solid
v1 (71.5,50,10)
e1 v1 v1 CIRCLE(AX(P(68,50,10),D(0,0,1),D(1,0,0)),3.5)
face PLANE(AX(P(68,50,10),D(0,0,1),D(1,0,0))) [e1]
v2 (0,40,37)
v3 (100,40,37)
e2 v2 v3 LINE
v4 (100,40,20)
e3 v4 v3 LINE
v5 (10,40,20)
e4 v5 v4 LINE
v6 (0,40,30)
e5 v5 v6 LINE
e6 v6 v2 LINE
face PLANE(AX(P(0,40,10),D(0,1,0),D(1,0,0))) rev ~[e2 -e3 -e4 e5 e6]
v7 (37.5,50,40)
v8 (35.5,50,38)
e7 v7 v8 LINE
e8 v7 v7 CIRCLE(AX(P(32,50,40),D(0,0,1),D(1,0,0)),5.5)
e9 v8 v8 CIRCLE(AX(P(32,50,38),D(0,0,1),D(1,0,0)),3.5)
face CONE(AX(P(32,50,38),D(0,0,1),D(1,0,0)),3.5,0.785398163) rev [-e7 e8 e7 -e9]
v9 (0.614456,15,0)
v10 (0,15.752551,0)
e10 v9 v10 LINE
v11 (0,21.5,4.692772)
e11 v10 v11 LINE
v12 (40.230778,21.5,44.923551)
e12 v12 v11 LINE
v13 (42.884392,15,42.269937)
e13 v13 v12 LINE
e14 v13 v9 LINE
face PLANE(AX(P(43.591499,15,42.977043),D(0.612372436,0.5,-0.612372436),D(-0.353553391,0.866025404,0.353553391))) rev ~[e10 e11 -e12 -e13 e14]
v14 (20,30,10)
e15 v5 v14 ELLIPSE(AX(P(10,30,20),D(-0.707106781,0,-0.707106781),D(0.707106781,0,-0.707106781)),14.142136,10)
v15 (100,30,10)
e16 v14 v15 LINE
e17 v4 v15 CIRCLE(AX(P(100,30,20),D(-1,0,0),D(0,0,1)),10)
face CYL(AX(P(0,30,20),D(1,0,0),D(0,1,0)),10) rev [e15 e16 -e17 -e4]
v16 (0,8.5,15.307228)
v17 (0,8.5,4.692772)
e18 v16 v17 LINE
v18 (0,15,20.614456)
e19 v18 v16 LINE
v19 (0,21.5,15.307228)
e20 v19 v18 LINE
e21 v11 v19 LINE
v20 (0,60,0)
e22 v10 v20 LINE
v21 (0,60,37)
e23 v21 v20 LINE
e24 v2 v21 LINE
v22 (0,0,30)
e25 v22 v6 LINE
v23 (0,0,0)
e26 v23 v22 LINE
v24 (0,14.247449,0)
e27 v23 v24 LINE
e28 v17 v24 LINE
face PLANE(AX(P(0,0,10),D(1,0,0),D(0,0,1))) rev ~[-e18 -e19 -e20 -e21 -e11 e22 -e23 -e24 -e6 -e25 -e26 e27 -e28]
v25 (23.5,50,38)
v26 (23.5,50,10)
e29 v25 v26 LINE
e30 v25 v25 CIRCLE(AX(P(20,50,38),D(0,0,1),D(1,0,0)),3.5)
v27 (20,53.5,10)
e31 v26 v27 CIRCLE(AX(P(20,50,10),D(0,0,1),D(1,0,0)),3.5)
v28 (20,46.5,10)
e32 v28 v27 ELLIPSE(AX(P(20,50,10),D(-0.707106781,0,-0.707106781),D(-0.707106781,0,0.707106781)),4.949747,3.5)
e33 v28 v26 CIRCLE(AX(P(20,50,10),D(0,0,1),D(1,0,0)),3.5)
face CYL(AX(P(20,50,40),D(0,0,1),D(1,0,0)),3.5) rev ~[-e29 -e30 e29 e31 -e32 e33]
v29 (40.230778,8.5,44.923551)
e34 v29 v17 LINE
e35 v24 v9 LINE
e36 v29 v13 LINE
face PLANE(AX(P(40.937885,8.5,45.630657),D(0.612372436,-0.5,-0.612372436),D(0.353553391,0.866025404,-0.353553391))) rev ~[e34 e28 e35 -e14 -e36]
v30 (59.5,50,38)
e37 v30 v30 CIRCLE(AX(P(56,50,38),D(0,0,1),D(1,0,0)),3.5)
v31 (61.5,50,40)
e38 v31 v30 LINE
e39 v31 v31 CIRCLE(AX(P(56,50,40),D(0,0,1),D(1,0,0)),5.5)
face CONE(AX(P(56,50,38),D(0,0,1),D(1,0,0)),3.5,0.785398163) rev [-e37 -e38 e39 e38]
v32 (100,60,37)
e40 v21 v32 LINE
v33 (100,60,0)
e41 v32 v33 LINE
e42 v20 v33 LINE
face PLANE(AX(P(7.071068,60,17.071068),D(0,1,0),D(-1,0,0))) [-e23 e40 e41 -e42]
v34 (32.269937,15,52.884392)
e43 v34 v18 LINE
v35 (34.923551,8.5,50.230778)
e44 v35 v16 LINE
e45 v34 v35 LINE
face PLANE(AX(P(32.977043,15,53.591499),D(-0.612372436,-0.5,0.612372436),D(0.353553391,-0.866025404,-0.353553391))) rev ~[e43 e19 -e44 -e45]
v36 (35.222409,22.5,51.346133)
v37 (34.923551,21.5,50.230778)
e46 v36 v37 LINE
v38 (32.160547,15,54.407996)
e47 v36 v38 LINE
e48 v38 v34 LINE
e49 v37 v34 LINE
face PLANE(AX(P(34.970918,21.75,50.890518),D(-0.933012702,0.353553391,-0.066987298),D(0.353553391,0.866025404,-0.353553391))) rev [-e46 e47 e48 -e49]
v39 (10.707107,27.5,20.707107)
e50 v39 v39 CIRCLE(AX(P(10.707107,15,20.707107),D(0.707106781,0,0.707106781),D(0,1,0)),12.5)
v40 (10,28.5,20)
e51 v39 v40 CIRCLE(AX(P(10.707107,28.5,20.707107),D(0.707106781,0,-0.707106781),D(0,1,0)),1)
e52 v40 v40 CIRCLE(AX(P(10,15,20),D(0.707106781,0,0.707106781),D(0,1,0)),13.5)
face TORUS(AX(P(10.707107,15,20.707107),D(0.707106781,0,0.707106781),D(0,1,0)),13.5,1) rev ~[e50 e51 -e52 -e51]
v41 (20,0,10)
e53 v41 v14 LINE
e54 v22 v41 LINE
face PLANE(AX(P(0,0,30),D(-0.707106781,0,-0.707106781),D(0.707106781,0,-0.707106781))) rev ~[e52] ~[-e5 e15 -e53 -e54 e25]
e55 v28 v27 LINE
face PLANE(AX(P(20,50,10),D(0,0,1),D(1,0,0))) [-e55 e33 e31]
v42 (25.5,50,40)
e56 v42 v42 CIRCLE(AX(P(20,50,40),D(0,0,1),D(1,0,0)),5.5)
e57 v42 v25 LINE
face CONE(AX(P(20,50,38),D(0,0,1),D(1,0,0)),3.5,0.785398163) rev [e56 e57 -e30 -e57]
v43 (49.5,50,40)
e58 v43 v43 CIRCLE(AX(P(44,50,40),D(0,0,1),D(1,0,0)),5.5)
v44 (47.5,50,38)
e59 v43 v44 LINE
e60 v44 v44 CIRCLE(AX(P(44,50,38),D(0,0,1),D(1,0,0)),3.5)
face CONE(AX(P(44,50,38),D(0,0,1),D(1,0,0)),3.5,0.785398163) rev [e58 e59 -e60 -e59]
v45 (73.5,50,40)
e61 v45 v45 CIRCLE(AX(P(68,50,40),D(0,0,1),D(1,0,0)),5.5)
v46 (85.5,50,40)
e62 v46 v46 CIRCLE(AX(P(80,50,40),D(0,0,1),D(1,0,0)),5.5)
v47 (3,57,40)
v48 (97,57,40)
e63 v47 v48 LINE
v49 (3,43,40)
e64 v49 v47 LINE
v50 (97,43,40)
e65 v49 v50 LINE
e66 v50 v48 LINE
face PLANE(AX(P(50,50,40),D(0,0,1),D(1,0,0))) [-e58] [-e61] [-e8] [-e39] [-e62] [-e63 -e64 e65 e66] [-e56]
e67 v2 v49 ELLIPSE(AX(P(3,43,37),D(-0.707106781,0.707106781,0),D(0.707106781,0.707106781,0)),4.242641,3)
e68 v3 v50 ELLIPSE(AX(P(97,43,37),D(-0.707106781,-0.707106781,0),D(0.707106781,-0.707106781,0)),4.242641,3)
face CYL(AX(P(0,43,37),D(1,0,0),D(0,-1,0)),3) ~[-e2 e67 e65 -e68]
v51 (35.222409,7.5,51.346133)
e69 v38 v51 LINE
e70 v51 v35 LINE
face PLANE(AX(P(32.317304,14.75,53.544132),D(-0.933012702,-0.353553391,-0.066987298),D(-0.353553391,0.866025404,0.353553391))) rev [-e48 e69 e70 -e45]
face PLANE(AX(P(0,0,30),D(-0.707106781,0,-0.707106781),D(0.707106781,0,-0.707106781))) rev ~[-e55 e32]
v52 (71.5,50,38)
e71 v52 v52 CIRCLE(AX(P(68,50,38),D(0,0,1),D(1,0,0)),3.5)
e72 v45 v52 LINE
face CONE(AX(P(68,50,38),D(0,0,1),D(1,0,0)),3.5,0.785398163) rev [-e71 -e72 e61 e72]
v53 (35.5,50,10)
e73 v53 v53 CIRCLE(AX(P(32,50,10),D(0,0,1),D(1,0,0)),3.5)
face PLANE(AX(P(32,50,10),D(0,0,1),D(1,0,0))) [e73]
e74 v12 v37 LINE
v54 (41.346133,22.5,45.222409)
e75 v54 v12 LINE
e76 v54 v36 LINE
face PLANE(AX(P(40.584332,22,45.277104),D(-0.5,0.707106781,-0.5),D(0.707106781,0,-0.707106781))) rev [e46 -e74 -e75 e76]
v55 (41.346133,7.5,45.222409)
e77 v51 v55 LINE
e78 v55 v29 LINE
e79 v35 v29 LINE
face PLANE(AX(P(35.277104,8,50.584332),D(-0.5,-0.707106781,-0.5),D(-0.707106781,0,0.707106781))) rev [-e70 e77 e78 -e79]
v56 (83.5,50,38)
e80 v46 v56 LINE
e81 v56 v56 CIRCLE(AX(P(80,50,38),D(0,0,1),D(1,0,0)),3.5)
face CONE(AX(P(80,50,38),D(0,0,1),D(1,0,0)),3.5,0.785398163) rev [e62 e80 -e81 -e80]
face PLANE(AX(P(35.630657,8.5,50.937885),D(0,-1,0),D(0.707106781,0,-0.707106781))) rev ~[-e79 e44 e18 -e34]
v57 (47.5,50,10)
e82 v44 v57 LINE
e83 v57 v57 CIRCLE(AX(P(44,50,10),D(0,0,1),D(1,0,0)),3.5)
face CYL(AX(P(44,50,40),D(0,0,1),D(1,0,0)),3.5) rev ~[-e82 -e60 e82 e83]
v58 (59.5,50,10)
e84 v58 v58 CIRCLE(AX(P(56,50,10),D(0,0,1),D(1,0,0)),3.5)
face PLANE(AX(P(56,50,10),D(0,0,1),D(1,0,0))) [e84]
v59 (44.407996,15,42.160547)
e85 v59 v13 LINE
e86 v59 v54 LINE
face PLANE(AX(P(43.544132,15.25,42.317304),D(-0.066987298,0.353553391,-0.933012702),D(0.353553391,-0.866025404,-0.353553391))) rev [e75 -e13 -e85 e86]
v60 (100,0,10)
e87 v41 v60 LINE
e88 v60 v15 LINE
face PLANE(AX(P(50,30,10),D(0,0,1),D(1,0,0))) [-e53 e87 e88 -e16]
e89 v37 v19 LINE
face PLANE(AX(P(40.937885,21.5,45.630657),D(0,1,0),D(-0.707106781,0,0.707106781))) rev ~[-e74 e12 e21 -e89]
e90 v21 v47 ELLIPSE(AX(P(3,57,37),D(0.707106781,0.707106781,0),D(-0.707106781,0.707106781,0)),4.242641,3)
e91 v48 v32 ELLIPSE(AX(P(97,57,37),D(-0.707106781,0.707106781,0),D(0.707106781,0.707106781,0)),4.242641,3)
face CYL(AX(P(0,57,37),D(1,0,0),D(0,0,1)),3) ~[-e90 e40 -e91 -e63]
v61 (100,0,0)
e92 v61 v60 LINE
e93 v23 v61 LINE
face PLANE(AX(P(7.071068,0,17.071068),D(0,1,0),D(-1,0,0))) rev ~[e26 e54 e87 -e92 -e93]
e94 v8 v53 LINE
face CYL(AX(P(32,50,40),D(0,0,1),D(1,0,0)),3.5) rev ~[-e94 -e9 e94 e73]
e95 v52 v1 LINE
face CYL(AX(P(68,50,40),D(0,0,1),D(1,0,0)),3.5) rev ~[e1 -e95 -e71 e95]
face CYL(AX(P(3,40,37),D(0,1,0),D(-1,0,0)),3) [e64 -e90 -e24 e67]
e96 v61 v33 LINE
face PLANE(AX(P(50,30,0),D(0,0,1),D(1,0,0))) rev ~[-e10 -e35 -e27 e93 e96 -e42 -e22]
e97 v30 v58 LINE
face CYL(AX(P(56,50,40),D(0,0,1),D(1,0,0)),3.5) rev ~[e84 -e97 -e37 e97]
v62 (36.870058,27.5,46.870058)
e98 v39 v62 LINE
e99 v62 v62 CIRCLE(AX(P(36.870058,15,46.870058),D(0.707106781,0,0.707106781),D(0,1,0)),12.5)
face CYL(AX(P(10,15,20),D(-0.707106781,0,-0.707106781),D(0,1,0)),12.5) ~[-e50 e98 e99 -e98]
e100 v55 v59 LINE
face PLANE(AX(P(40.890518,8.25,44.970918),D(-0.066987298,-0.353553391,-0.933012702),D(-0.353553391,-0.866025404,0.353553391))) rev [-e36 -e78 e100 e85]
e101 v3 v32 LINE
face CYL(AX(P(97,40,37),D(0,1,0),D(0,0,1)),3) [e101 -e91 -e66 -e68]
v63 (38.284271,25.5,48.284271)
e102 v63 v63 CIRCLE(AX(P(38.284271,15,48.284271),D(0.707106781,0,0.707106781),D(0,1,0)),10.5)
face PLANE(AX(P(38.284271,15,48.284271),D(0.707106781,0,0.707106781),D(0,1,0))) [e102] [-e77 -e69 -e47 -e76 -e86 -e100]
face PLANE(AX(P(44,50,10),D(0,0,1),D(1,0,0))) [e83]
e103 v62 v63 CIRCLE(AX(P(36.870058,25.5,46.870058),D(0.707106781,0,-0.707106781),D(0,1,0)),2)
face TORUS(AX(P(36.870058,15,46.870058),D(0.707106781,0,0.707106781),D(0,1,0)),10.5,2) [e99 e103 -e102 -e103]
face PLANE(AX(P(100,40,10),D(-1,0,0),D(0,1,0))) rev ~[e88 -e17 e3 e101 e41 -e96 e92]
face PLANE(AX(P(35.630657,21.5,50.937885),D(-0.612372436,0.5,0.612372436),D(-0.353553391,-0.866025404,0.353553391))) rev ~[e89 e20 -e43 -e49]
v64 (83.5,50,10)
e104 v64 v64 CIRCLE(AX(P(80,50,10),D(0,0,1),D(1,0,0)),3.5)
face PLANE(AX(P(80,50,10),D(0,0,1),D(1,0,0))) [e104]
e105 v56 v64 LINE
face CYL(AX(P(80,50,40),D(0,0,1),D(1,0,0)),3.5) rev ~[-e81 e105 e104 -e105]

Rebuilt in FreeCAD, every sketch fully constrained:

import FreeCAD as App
import Part
import Sketcher
Q = App.Units.Quantity


def edges_at(feature, points):
    """Names of the edges that pass closest to the given points."""
    edges = feature.Shape.Edges
    near = lambda p: min(range(len(edges)), key=lambda i: edges[i].distToShape(Part.Vertex(*p))[0])
    return sorted({f"Edge{near(p) + 1}" for p in points})


def add_polygon(sketch, points):
    """Adds a closed chain of lines whose ends are joined by coincident constraints."""
    first, n = sketch.GeometryCount, len(points)
    for a, b in zip(points, points[1:] + points[:1]):
        sketch.addGeometry(Part.LineSegment(App.Vector(*a, 0), App.Vector(*b, 0)), False)
    for i in range(n):
        sketch.addConstraint(Sketcher.Constraint("Coincident", first + i, 2, first + (i + 1) % n, 1))

doc = App.newDocument("Part")
params = doc.addObject("Spreadsheet::Sheet", "Params")
for row, (alias, value) in enumerate([
    ("sketch1_width", "100 mm"),
    ("sketch1_height", "60 mm"),
    ("pad1_length", "10 mm"),
    ("sketch2_width", "100 mm"),
    ("sketch2_height", "20 mm"),
    ("pad2_length", "30 mm"),
    ("sketch3_diameter", "7 mm"),
    ("pocket1_length", "30 mm"),
    ("linearpattern_pitch", "12 mm"),
    ("chamfer_size", "2 mm"),
    ("fillet_radius", "10 mm"),
    ("fillet2_radius", "3 mm"),
    ("sketch4_width", "20 mm"),
    ("pad3_length", "60 mm"),
    ("sketch5_diameter", "25 mm"),
    ("pad4_length", "40 mm"),
    ("fillet3_radius", "2 mm"),
    ("chamfer2_size", "1 mm"),
    ("fillet4_radius", "1 mm"),
], start=1):
    params.set(f"A{row}", alias)
    params.set(f"B{row}", "=" + value)
    params.setAlias(f"B{row}", alias)

body = doc.addObject("PartDesign::Body", "Body")

# Sketch on XY plane
sketch1 = doc.addObject("Sketcher::SketchObject", "Sketch")
body.addObject(sketch1)
sketch1.AttachmentSupport = (doc.XY_Plane, [""])
sketch1.MapMode = "FlatFace"
add_polygon(sketch1, [(0, 60), (0, 0), (100, 0), (100, 60)])  # lines 0-3
sketch1.addConstraint([
    Sketcher.Constraint("Vertical", 0),
    Sketcher.Constraint("Horizontal", 1),
    Sketcher.Constraint("Vertical", 2),
    Sketcher.Constraint("Horizontal", 3),
    Sketcher.Constraint("Coincident", 0, 2, -1, 1),
    Sketcher.Constraint("DistanceX", 1, 1, 1, 2, 100.0),
    Sketcher.Constraint("DistanceY", 0, 2, 0, 1, 60.0),
])
sketch1.setExpression("Constraints[9]", "Params.sketch1_width")
sketch1.setExpression("Constraints[10]", "Params.sketch1_height")
pad1 = doc.addObject("PartDesign::Pad", "Pad")
body.addObject(pad1)
pad1.Profile = sketch1
pad1.setExpression("Length", "Params.pad1_length")

# Sketch on XY plane
sketch2 = doc.addObject("Sketcher::SketchObject", "Sketch001")
body.addObject(sketch2)
sketch2.AttachmentSupport = (doc.XY_Plane, [""])
sketch2.MapMode = "FlatFace"
sketch2.AttachmentOffset = App.Placement(App.Vector(0, 0, 10), App.Rotation())
add_polygon(sketch2, [(0, 60), (0, 40), (100, 40), (100, 60)])  # lines 0-3
sketch2.addConstraint([
    Sketcher.Constraint("Vertical", 0),
    Sketcher.Constraint("Horizontal", 1),
    Sketcher.Constraint("Vertical", 2),
    Sketcher.Constraint("Horizontal", 3),
    Sketcher.Constraint("PointOnObject", 0, 2, -2),
    Sketcher.Constraint("DistanceX", 1, 1, 1, 2, 100.0),
    Sketcher.Constraint("DistanceY", 0, 2, 0, 1, 20.0),
    Sketcher.Constraint("DistanceY", -1, 1, 0, 2, 40.0),
])
sketch2.setExpression("Constraints[9]", "Params.sketch2_width")
sketch2.setExpression("Constraints[10]", "Params.sketch2_height")
pad2 = doc.addObject("PartDesign::Pad", "Pad001")
body.addObject(pad2)
pad2.Profile = sketch2
pad2.setExpression("Length", "Params.pad2_length")

# Sketch on XY plane
sketch3 = doc.addObject("Sketcher::SketchObject", "Sketch002")
body.addObject(sketch3)
sketch3.AttachmentSupport = (doc.XY_Plane, [""])
sketch3.MapMode = "FlatFace"
sketch3.AttachmentOffset = App.Placement(App.Vector(0, 0, 40), App.Rotation())
sketch3.addGeometry(Part.Circle(App.Vector(80, 50, 0), App.Vector(0, 0, 1), 3.5), False)
sketch3.addConstraint([
    Sketcher.Constraint("Diameter", 0, 7.0),
    Sketcher.Constraint("DistanceX", -1, 1, 0, 3, 80.0),
    Sketcher.Constraint("DistanceY", -1, 1, 0, 3, 50.0),
])
sketch3.setExpression("Constraints[0]", "Params.sketch3_diameter")
pocket1 = doc.addObject("PartDesign::Pocket", "Pocket")
body.addObject(pocket1)
pocket1.Profile = sketch3
pocket1.setExpression("Length", "Params.pocket1_length")
doc.recompute()

linearpattern = doc.addObject("PartDesign::LinearPattern", "LinearPattern")
body.addObject(linearpattern)
linearpattern.Originals = [pocket1]
linearpattern.Direction = (doc.X_Axis, [""])
linearpattern.Mode = "offset"
linearpattern.setExpression("Offset", "Params.linearpattern_pitch")
linearpattern.Occurrences = 6
linearpattern.Reversed = True
body.Tip = linearpattern
doc.recompute()

chamfer = doc.addObject("PartDesign::Chamfer", "Chamfer")
body.addObject(chamfer)
chamfer.Base = (linearpattern, edges_at(linearpattern, [
    (28.5, 50, 40),
    (16.5, 50, 40),
    (40.5, 50, 40),
    (52.5, 50, 40),
    (64.5, 50, 40),
    (76.5, 50, 40),
]))
chamfer.setExpression("Size", "Params.chamfer_size")
doc.recompute()

fillet = doc.addObject("PartDesign::Fillet", "Fillet")
body.addObject(fillet)
fillet.Base = (chamfer, edges_at(chamfer, [(50, 40, 10)]))
fillet.setExpression("Radius", "Params.fillet_radius")
doc.recompute()

fillet2 = doc.addObject("PartDesign::Fillet", "Fillet001")
body.addObject(fillet2)
fillet2.Base = (fillet, edges_at(fillet, [
    (0, 50, 40),
    (50, 60, 40),
    (50, 40, 40),
    (100, 50, 40),
]))
fillet2.setExpression("Radius", "Params.fillet2_radius")

# Sketch on XZ plane
sketch4 = doc.addObject("Sketcher::SketchObject", "Sketch003")
body.addObject(sketch4)
sketch4.AttachmentSupport = (doc.XZ_Plane, [""])
sketch4.MapMode = "FlatFace"
add_polygon(sketch4, [(0, 30), (0, 10), (20, 10)])  # lines 0-2
sketch4.addConstraint([
    Sketcher.Constraint("Vertical", 0),
    Sketcher.Constraint("Horizontal", 1),
    Sketcher.Constraint("PointOnObject", 0, 2, -2),
    Sketcher.Constraint("Equal", 1, 0),
    Sketcher.Constraint("DistanceX", 1, 1, 1, 2, 20.0),
    Sketcher.Constraint("DistanceY", -1, 1, 0, 2, 10.0),
])
sketch4.setExpression("Constraints[7]", "Params.sketch4_width")
pad3 = doc.addObject("PartDesign::Pad", "Pad002")
body.addObject(pad3)
pad3.Profile = sketch4
pad3.setExpression("Length", "Params.pad3_length")
pad3.Reversed = True

# Sketch on an angled plane
sketch5 = doc.addObject("Sketcher::SketchObject", "Sketch004")
body.addObject(sketch5)
sketch5.Placement = App.Placement(App.Vector(15, 0, 15), App.Rotation(App.Vector(0, 1, 0), App.Vector(-0.707106781, 0, 0.707106781), App.Vector(0.707106781, 0, 0.707106781), "ZXY"))
sketch5.addGeometry(Part.Circle(App.Vector(15, 7, 0), App.Vector(0, 0, 1), 12), False)
sketch5.addConstraint([
    Sketcher.Constraint("Diameter", 0, 25.0),
    Sketcher.Constraint("DistanceX", -1, 1, 0, 3, 15.0),
    Sketcher.Constraint("DistanceY", -1, 1, 0, 3, 7.071068),
])
sketch5.setExpression("Constraints[0]", "Params.sketch5_diameter")
pad4 = doc.addObject("PartDesign::Pad", "Pad003")
body.addObject(pad4)
pad4.Profile = sketch5
pad4.setExpression("Length", "Params.pad4_length")

# Sketch on an angled plane
sketch6 = doc.addObject("Sketcher::SketchObject", "Sketch005")
body.addObject(sketch6)
sketch6.Placement = App.Placement(App.Vector(43.284271, 0, 43.284271), App.Rotation(App.Vector(0.707106781, 0, -0.707106781), App.Vector(0, 0.999999999, 0), App.Vector(0.707106781, 0, 0.707106781), "ZXY"))
add_polygon(sketch6, [(-3, 21), (-11, 21), (-15, 15), (-11, 8), (-3, 8), (0, 15)])  # lines 0-5
sketch6.addConstraint([
    Sketcher.Constraint("Horizontal", 0),
    Sketcher.Constraint("Horizontal", 3),
    Sketcher.Constraint("Parallel", 1, 4),
    Sketcher.Constraint("Parallel", 2, 5),
    Sketcher.Constraint("Horizontal", 1, 2, 4, 2),
    Sketcher.Constraint("Vertical", 0, 2, 2, 2),
    Sketcher.Constraint("Vertical", 3, 2, 5, 2),
    Sketcher.Constraint("Angle", 1, Q("-120 deg")),
    Sketcher.Constraint("DistanceY", -1, 1, 1, 2, 15.0),
    Sketcher.Constraint("DistanceY", 2, 2, 0, 2, 13.0),
    Sketcher.Constraint("DistanceX", 0, 2, 0, 1, 7.505553),
    Sketcher.Constraint("DistanceX", 1, 2, -1, 1, 14.576621),
])
pocket2 = doc.addObject("PartDesign::Pocket", "Pocket001")
body.addObject(pocket2)
pocket2.Profile = sketch6
pocket2.Type = "ThroughAll"
doc.recompute()

fillet3 = doc.addObject("PartDesign::Fillet", "Fillet002")
body.addObject(fillet3)
fillet3.Base = (pocket2, edges_at(pocket2, [(38.284, 2.5, 48.284)]))
fillet3.setExpression("Radius", "Params.fillet3_radius")
doc.recompute()

chamfer2 = doc.addObject("PartDesign::Chamfer", "Chamfer001")
body.addObject(chamfer2)
chamfer2.Base = (fillet3, edges_at(fillet3, [
    (38.284, 21.5, 48.284),
    (34.304, 18.25, 52.265),
    (34.304, 11.75, 52.265),
    (38.284, 8.5, 48.284),
    (42.265, 11.75, 44.304),
    (42.265, 18.25, 44.304),
]))
chamfer2.setExpression("Size", "Params.chamfer2_size")
doc.recompute()

fillet4 = doc.addObject("PartDesign::Fillet", "Fillet003")
body.addObject(fillet4)
fillet4.Base = (chamfer2, edges_at(chamfer2, [(10, 2.5, 20)]))
fillet4.setExpression("Radius", "Params.fillet4_radius")

doc.recompute()
